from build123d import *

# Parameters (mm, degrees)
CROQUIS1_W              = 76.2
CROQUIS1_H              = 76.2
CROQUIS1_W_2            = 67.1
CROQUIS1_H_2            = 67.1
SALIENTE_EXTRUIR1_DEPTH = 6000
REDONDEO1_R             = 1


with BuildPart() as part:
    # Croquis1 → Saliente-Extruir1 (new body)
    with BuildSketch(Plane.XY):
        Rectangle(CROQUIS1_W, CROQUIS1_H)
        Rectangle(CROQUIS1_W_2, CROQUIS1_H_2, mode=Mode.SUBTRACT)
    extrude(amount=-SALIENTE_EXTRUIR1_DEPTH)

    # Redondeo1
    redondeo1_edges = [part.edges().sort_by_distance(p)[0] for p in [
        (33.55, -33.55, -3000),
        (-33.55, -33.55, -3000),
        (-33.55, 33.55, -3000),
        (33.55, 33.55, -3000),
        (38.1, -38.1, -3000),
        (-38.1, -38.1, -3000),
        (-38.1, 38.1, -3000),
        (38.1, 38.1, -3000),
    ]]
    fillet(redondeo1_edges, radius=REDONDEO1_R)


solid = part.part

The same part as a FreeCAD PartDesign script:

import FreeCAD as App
import Part
import Sketcher
Q = App.Units.Quantity


def edges_at(feature, points):
    """Names of the edges that pass closest to the given points."""
    edges = feature.Shape.Edges
    near = lambda p: min(range(len(edges)), key=lambda i: edges[i].distToShape(Part.Vertex(*p))[0])
    return sorted({f"Edge{near(p) + 1}" for p in points})


def add_polygon(sketch, points):
    """Adds a closed chain of lines whose ends are joined by coincident constraints."""
    first, n = sketch.GeometryCount, len(points)
    for a, b in zip(points, points[1:] + points[:1]):
        sketch.addGeometry(Part.LineSegment(App.Vector(*a, 0), App.Vector(*b, 0)), False)
    for i in range(n):
        sketch.addConstraint(Sketcher.Constraint("Coincident", first + i, 2, first + (i + 1) % n, 1))

doc = App.newDocument("Part")
body = doc.addObject("PartDesign::Body", "Body")

sketch1 = doc.addObject("Sketcher::SketchObject", "Sketch")
body.addObject(sketch1)
sketch1.AttachmentSupport = (doc.XY_Plane, [""])
sketch1.MapMode = "FlatFace"
add_polygon(sketch1, [(-38, 38), (-38, -38), (38, -38), (38, 38)])
add_polygon(sketch1, [(34, -34), (-34, -34), (-34, 34), (34, 34)])
sketch1.addConstraint([
    Sketcher.Constraint("Vertical", 0),
    Sketcher.Constraint("Horizontal", 1),
    Sketcher.Constraint("Vertical", 2),
    Sketcher.Constraint("Horizontal", 3),
    Sketcher.Constraint("Horizontal", 4),
    Sketcher.Constraint("Vertical", 5),
    Sketcher.Constraint("Horizontal", 6),
    Sketcher.Constraint("Vertical", 7),
    Sketcher.Constraint("Symmetric", 0, 2, 2, 2, -1, 1),
    Sketcher.Constraint("Symmetric", 4, 2, 6, 2, -1, 1),
    Sketcher.Constraint("Equal", 3, 0),
    Sketcher.Constraint("Equal", 6, 5),
    Sketcher.Constraint("DistanceX", 1, 1, 1, 2, Q("76.2 mm")),
    Sketcher.Constraint("DistanceX", 4, 2, 4, 1, Q("67.1 mm")),
])
pad1 = doc.addObject("PartDesign::Pad", "Pad")
body.addObject(pad1)
pad1.Profile = sketch1
pad1.Length = 6000
pad1.Reversed = True
doc.recompute()

fillet = doc.addObject("PartDesign::Fillet", "Fillet")
body.addObject(fillet)
fillet.Base = (pad1, edges_at(pad1, [
    (33.55, -33.55, -3000),
    (-33.55, -33.55, -3000),
    (-33.55, 33.55, -3000),
    (33.55, 33.55, -3000),
    (38.1, -38.1, -3000),
    (-38.1, -38.1, -3000),
    (-38.1, 38.1, -3000),
    (38.1, 38.1, -3000),
]))
fillet.Radius = 1

doc.recompute()
